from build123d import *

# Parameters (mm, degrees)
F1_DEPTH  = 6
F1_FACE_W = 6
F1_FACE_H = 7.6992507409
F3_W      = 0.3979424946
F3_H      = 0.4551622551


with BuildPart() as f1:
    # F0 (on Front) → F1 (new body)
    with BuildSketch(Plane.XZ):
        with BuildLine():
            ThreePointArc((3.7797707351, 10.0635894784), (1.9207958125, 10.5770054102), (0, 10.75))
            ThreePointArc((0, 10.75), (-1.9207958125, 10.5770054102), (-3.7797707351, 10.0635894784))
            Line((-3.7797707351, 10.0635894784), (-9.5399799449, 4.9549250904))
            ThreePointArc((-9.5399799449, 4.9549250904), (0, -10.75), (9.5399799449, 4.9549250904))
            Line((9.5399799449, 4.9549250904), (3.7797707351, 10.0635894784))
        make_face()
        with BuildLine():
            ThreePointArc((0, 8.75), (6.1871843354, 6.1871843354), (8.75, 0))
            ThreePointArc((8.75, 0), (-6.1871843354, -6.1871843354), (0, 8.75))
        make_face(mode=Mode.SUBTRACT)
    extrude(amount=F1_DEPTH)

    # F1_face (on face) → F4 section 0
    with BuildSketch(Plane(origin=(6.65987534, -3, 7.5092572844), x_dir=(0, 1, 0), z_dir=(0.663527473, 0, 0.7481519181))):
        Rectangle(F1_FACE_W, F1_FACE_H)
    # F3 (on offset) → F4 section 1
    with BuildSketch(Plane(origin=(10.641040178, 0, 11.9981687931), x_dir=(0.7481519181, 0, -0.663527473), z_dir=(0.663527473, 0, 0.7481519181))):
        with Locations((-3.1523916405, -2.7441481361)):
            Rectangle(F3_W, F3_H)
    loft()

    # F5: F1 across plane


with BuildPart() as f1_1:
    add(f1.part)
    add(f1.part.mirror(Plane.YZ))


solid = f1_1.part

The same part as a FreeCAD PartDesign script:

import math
import FreeCAD as App
import Part
import Sketcher
from FreeCAD import Vector
Q = App.Units.Quantity

doc = App.newDocument("Part")
body = doc.addObject("PartDesign::Body", "Body")

# Sketch on XZ plane
sketch1 = body.newObject("Sketcher::SketchObject", "Sketch")
sketch1.AttachmentSupport = (doc.getObject("XZ_Plane"), [""])
sketch1.MapMode = "FlatFace"
sketch1.addGeometry(Part.ArcOfCircle(Part.Circle(Vector(0, 0, 0), Vector(0, 0, 1), 10.75), math.radians(69.414388), math.radians(90)), False)
sketch1.addGeometry(Part.ArcOfCircle(Part.Circle(Vector(0, 0, 0), Vector(0, 0, 1), 10.75), math.radians(90), math.radians(110.585612)), False)
sketch1.addGeometry(Part.LineSegment(Vector(-3.779771, 10.063589, 0), Vector(-9.53998, 4.954925, 0)), False)
sketch1.addGeometry(Part.ArcOfCircle(Part.Circle(Vector(0, 0, 0), Vector(0, 0, 1), 10.75), math.radians(152.5533), math.radians(387.4467)), False)
sketch1.addGeometry(Part.LineSegment(Vector(9.53998, 4.954925, 0), Vector(3.779771, 10.063589, 0)), False)
sketch1.addGeometry(Part.ArcOfCircle(Part.Circle(Vector(0, 0, 0), Vector(0, 0, 1), 8.75), math.radians(90), math.radians(360)), False)
sketch1.addGeometry(Part.ArcOfCircle(Part.Circle(Vector(0, 0, 0), Vector(0, 0, 1), 8.75), math.radians(0), math.radians(90)), False)
sketch1.addConstraint(Sketcher.Constraint("Tangent", 0, 2, 1, 1))
sketch1.addConstraint(Sketcher.Constraint("Coincident", 1, 2, 2, 1))
sketch1.addConstraint(Sketcher.Constraint("Coincident", 2, 2, 3, 1))
sketch1.addConstraint(Sketcher.Constraint("Coincident", 3, 2, 4, 1))
sketch1.addConstraint(Sketcher.Constraint("Coincident", 4, 2, 0, 1))
sketch1.addConstraint(Sketcher.Constraint("Tangent", 5, 1, 6, 2))
sketch1.addConstraint(Sketcher.Constraint("Coincident", 6, 1, 5, 2))
sketch1.addConstraint(Sketcher.Constraint("Coincident", 0, 3, -1, 1))
sketch1.addConstraint(Sketcher.Constraint("Coincident", 3, 3, -1, 1))
sketch1.addConstraint(Sketcher.Constraint("Coincident", 5, 3, -1, 1))
sketch1.addConstraint(Sketcher.Constraint("Equal", 0, 1))
sketch1.addConstraint(Sketcher.Constraint("Equal", 1, 3))
sketch1.addConstraint(Sketcher.Constraint("PointOnObject", 0, 2, -2))
sketch1.addConstraint(Sketcher.Constraint("PointOnObject", 5, 1, -2))
sketch1.addConstraint(Sketcher.Constraint("PointOnObject", 6, 1, -1))
sketch1.addConstraint(Sketcher.Constraint("Horizontal", 2, 2, 3, 2))
sketch1.addConstraint(Sketcher.Constraint("Horizontal", 1, 2, 4, 2))
sketch1.addConstraint(Sketcher.Constraint("Radius", 0, Q("10.75 mm")))
sketch1.addConstraint(Sketcher.Constraint("Radius", 5, Q("8.75 mm")))
sketch1.addConstraint(Sketcher.Constraint("Distance", 2, Q("7.699251 mm")))
sketch1.addConstraint(Sketcher.Constraint("DistanceX", 1, 2, -1, 1, Q("3.779771 mm")))
pad1 = body.newObject("PartDesign::Pad", "Pad")
pad1.Profile = sketch1
pad1.Length = 6

# Sketch on an angled plane
sketch2 = body.newObject("Sketcher::SketchObject", "Sketch001")
sketch2.Placement = App.Placement(Vector(6.659875, -3, 7.509257), App.Rotation(Vector(0, 1, 0), Vector(-0.748151918, 0, 0.663527473), Vector(0.663527473, 0, 0.748151918), "ZXY"))
sketch2.addGeometry(Part.LineSegment(Vector(-3, 3.849625, 0), Vector(-3, -3.849625, 0)), False)
sketch2.addGeometry(Part.LineSegment(Vector(-3, -3.849625, 0), Vector(3, -3.849625, 0)), False)
sketch2.addGeometry(Part.LineSegment(Vector(3, -3.849625, 0), Vector(3, 3.849625, 0)), False)
sketch2.addGeometry(Part.LineSegment(Vector(3, 3.849625, 0), Vector(-3, 3.849625, 0)), False)
sketch2.addConstraint(Sketcher.Constraint("Coincident", 0, 2, 1, 1))
sketch2.addConstraint(Sketcher.Constraint("Coincident", 1, 2, 2, 1))
sketch2.addConstraint(Sketcher.Constraint("Coincident", 2, 2, 3, 1))
sketch2.addConstraint(Sketcher.Constraint("Coincident", 3, 2, 0, 1))
sketch2.addConstraint(Sketcher.Constraint("Vertical", 0))
sketch2.addConstraint(Sketcher.Constraint("Horizontal", 1))
sketch2.addConstraint(Sketcher.Constraint("Vertical", 2))
sketch2.addConstraint(Sketcher.Constraint("Horizontal", 3))
sketch2.addConstraint(Sketcher.Constraint("Symmetric", 0, 2, 2, 2, -1, 1))
sketch2.addConstraint(Sketcher.Constraint("DistanceX", 1, 1, 1, 2, Q("6 mm")))
sketch2.addConstraint(Sketcher.Constraint("DistanceY", 0, 2, 0, 1, Q("7.699251 mm")))

# Sketch on an angled plane
sketch3 = body.newObject("Sketcher::SketchObject", "Sketch002")
sketch3.Placement = App.Placement(Vector(10.64104, 0, 11.998169), App.Rotation(Vector(0.748151918, 0, -0.663527473), Vector(0, 1, 0), Vector(0.663527473, 0, 0.748151918), "ZXY"))
sketch3.addGeometry(Part.LineSegment(Vector(-3.351363, -2.516567, 0), Vector(-3.351363, -2.971729, 0)), False)
sketch3.addGeometry(Part.LineSegment(Vector(-3.351363, -2.971729, 0), Vector(-2.95342, -2.971729, 0)), False)
sketch3.addGeometry(Part.LineSegment(Vector(-2.95342, -2.971729, 0), Vector(-2.95342, -2.516567, 0)), False)
sketch3.addGeometry(Part.LineSegment(Vector(-2.95342, -2.516567, 0), Vector(-3.351363, -2.516567, 0)), False)
sketch3.addConstraint(Sketcher.Constraint("Coincident", 0, 2, 1, 1))
sketch3.addConstraint(Sketcher.Constraint("Coincident", 1, 2, 2, 1))
sketch3.addConstraint(Sketcher.Constraint("Coincident", 2, 2, 3, 1))
sketch3.addConstraint(Sketcher.Constraint("Coincident", 3, 2, 0, 1))
sketch3.addConstraint(Sketcher.Constraint("Vertical", 0))
sketch3.addConstraint(Sketcher.Constraint("Horizontal", 1))
sketch3.addConstraint(Sketcher.Constraint("Vertical", 2))
sketch3.addConstraint(Sketcher.Constraint("Horizontal", 3))
sketch3.addConstraint(Sketcher.Constraint("DistanceX", 1, 1, 1, 2, Q("0.397942 mm")))
sketch3.addConstraint(Sketcher.Constraint("DistanceY", 0, 2, 0, 1, Q("0.455162 mm")))
sketch3.addConstraint(Sketcher.Constraint("DistanceY", 0, 2, -1, 1, Q("2.971729 mm")))
sketch3.addConstraint(Sketcher.Constraint("DistanceX", 1, 2, -1, 1, Q("2.95342 mm")))

additiveloft = body.newObject("PartDesign::AdditiveLoft", "AdditiveLoft")
additiveloft.Profile = sketch2
additiveloft.Sections = [sketch3]
body2 = doc.addObject("PartDesign::Body", "Body001")
doc.recompute()

body2.BaseFeature = body
doc.recompute()

mirroring = doc.addObject("Part::Mirroring", "Mirroring")
mirroring.Source = body
mirroring.Base = Vector(0, 0, 0)
mirroring.Normal = Vector(1, 0, 0)
body3 = doc.addObject("PartDesign::Body", "Body002")
body3.BaseFeature = mirroring
boolean = body2.newObject("PartDesign::Boolean", "Boolean")
boolean.Type = "Fuse"
boolean.addObjects([body3])
doc.recompute()
mirroring.Visibility = False

doc.recompute()
